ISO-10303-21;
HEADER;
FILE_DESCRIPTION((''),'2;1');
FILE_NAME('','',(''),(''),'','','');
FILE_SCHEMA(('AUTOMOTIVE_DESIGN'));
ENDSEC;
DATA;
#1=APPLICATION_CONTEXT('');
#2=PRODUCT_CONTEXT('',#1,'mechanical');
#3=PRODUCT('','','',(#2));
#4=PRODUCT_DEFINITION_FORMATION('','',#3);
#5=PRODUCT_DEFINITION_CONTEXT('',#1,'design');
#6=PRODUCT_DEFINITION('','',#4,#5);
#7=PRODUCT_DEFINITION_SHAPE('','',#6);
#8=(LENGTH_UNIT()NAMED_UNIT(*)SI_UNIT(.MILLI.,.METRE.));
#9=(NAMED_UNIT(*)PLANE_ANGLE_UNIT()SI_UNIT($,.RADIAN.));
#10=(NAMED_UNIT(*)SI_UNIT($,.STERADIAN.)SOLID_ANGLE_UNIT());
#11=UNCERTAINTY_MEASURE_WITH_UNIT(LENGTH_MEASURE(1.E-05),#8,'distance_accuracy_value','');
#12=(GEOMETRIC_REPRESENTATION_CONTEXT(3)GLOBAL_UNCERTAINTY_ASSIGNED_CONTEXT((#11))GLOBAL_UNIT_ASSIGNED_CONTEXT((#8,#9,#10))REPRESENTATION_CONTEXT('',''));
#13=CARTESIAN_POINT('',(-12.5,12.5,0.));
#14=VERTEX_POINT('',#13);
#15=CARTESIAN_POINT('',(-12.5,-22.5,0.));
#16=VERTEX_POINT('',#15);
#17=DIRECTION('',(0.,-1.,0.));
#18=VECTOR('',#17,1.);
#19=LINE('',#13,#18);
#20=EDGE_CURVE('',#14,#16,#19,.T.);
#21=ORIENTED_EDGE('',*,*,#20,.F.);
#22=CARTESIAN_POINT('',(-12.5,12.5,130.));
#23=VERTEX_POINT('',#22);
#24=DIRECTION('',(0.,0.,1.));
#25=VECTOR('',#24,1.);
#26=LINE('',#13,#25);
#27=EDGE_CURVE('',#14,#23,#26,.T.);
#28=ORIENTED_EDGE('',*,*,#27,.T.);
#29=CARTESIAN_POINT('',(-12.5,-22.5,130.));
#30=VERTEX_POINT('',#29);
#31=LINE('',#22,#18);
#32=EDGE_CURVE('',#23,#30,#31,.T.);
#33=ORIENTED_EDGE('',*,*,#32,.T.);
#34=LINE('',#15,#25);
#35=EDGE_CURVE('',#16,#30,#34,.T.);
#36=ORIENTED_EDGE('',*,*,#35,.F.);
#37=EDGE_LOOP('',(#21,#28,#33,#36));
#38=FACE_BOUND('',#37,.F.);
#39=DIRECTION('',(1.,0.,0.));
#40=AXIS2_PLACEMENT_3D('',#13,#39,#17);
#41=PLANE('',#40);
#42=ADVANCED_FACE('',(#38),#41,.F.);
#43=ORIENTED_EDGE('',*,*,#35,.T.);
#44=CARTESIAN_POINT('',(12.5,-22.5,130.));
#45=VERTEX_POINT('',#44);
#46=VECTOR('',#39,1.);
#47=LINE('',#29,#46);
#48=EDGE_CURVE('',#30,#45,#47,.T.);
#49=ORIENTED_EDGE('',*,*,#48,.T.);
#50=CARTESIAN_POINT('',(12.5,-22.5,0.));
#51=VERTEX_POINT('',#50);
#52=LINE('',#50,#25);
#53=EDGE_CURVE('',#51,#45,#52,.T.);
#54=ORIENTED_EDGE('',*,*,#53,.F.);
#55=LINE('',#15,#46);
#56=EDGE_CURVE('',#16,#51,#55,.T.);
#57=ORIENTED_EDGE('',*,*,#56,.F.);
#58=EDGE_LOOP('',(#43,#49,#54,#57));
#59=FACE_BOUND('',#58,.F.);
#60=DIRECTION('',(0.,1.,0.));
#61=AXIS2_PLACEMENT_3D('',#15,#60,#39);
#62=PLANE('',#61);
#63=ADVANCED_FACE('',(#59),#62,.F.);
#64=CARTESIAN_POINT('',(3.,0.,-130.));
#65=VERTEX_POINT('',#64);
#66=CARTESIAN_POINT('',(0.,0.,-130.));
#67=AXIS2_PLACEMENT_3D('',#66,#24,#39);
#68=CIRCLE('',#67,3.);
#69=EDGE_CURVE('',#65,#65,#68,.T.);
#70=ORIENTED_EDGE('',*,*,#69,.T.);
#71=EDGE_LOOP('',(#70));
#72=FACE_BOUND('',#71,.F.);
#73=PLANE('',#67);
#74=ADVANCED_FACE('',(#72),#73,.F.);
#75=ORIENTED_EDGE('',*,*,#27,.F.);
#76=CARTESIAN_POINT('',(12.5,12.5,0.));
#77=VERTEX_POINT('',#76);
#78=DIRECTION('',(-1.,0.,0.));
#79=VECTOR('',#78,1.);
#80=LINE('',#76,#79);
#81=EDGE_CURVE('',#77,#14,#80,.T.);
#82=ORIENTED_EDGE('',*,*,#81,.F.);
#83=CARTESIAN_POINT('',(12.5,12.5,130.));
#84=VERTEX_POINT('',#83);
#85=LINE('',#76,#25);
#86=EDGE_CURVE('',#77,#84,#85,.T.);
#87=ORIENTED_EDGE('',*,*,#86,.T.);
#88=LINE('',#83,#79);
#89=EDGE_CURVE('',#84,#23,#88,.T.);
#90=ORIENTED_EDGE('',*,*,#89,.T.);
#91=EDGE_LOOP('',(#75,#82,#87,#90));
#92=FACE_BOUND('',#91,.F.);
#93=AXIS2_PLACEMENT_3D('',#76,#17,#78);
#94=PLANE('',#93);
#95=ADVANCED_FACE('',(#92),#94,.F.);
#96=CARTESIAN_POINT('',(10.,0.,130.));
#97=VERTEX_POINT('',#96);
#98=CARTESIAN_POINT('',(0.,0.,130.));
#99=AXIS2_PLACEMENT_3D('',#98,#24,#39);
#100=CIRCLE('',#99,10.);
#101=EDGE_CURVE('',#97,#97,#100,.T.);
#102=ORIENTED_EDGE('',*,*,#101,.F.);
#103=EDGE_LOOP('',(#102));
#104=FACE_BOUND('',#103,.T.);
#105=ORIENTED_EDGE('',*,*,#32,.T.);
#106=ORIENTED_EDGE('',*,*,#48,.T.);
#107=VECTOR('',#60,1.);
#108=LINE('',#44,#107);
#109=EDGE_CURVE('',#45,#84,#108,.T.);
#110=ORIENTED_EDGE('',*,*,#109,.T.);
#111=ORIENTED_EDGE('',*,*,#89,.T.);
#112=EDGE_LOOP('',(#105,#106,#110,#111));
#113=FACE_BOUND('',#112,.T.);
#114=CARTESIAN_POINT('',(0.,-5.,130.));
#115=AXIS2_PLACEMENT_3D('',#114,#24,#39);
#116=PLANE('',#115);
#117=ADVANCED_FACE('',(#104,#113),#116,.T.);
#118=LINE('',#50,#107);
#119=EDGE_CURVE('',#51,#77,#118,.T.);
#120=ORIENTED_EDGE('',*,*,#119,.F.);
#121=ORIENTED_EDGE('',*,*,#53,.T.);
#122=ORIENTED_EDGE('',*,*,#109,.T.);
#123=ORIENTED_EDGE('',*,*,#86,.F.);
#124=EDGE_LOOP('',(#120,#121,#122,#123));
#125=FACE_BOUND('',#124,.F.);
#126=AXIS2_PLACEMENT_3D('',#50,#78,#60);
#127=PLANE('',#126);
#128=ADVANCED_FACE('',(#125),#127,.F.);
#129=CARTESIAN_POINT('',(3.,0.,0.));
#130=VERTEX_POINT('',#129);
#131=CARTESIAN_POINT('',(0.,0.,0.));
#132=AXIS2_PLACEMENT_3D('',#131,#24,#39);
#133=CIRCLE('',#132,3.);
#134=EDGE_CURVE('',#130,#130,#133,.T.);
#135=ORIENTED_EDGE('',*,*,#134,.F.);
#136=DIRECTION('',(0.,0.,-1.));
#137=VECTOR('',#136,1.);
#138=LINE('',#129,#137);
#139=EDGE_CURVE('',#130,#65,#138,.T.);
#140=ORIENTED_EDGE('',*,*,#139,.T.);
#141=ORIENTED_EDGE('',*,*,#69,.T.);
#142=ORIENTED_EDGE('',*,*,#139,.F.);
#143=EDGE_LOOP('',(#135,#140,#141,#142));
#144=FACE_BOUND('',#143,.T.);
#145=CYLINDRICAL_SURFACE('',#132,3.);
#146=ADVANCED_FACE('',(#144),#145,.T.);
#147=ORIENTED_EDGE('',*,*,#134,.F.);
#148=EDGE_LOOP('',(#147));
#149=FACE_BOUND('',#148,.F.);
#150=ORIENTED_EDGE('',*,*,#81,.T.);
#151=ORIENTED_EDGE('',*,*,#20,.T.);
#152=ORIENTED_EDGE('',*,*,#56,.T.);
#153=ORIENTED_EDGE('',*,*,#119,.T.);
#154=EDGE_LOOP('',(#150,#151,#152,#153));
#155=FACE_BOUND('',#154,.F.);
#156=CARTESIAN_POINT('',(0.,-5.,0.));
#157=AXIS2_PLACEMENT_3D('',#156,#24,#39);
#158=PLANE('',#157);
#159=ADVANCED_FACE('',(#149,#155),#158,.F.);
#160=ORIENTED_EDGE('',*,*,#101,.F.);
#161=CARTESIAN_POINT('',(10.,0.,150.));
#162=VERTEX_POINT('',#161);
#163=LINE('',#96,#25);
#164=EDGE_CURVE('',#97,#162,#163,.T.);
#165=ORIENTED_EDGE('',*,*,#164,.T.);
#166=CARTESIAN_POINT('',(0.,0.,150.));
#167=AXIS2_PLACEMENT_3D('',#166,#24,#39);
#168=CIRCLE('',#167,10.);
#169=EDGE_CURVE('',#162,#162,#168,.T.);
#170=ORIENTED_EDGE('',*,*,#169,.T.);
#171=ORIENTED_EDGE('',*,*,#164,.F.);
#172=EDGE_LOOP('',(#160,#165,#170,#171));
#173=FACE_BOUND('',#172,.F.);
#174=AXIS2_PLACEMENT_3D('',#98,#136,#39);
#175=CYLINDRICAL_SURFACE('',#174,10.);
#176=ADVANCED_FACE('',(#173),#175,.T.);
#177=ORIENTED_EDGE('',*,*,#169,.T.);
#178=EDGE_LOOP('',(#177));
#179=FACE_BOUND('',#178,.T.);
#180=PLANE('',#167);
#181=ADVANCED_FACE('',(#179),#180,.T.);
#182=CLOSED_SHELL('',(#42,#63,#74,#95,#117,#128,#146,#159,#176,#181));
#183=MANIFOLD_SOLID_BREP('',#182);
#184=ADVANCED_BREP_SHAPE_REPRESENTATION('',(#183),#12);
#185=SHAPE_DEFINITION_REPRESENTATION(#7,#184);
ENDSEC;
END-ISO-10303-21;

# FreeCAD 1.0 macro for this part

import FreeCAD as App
import Part
import Sketcher


def add_polygon(sketch, points):
    """Adds a closed chain of lines whose ends are joined by coincident constraints."""
    first, n = sketch.GeometryCount, len(points)
    for a, b in zip(points, points[1:] + points[:1]):
        sketch.addGeometry(Part.LineSegment(App.Vector(*a, 0), App.Vector(*b, 0)), False)
    for i in range(n):
        sketch.addConstraint(Sketcher.Constraint("Coincident", first + i, 2, first + (i + 1) % n, 1))

doc = App.newDocument("Part")
params = doc.addObject("Spreadsheet::Sheet", "Params")
for row, (alias, value) in enumerate([
    ("sketch1_diameter", "6 mm"),
    ("pad1_length", "130 mm"),
    ("sketch2_width", "25 mm"),
    ("sketch2_height", "35 mm"),
    ("pad2_length", "130 mm"),
    ("sketch3_diameter", "20 mm"),
    ("pad3_length", "20 mm"),
], start=1):
    params.set(f"A{row}", alias)
    params.set(f"B{row}", "=" + value)
    params.setAlias(f"B{row}", alias)

body = doc.addObject("PartDesign::Body", "Body")

# Sketch on XY plane
sketch1 = doc.addObject("Sketcher::SketchObject", "Sketch")
body.addObject(sketch1)
sketch1.AttachmentSupport = (doc.XY_Plane, [""])
sketch1.MapMode = "FlatFace"
sketch1.addGeometry(Part.Circle(App.Vector(0, 0, 0), App.Vector(0, 0, 1), 3), False)
sketch1.addConstraint(Sketcher.Constraint("Coincident", 0, 3, -1, 1))
sketch1.addConstraint(Sketcher.Constraint("Diameter", 0, 6.0))
sketch1.setExpression("Constraints[1]", "Params.sketch1_diameter")
pad1 = doc.addObject("PartDesign::Pad", "Pad")
body.addObject(pad1)
pad1.Profile = sketch1
pad1.setExpression("Length", "Params.pad1_length")
pad1.Reversed = True

# Sketch on XY plane
sketch2 = doc.addObject("Sketcher::SketchObject", "Sketch001")
body.addObject(sketch2)
sketch2.AttachmentSupport = (doc.XY_Plane, [""])
sketch2.MapMode = "FlatFace"
add_polygon(sketch2, [(12, 12), (-12, 12), (-12, -22), (12, -22)])  # lines 0-3
sketch2.addConstraint(Sketcher.Constraint("Horizontal", 0))
sketch2.addConstraint(Sketcher.Constraint("Vertical", 1))
sketch2.addConstraint(Sketcher.Constraint("Horizontal", 2))
sketch2.addConstraint(Sketcher.Constraint("Vertical", 3))
sketch2.addConstraint(Sketcher.Constraint("DistanceX", 0, 2, 0, 1, 25.0))
sketch2.addConstraint(Sketcher.Constraint("DistanceY", 1, 2, 1, 1, 35.0))
sketch2.addConstraint(Sketcher.Constraint("DistanceX", 0, 2, -1, 1, 12.5))
sketch2.addConstraint(Sketcher.Constraint("DistanceY", -1, 1, 0, 2, 12.5))
sketch2.setExpression("Constraints[8]", "Params.sketch2_width")
sketch2.setExpression("Constraints[9]", "Params.sketch2_height")
pad2 = doc.addObject("PartDesign::Pad", "Pad001")
body.addObject(pad2)
pad2.Profile = sketch2
pad2.setExpression("Length", "Params.pad2_length")

# Sketch on XY plane
sketch3 = doc.addObject("Sketcher::SketchObject", "Sketch002")
body.addObject(sketch3)
sketch3.AttachmentSupport = (doc.XY_Plane, [""])
sketch3.MapMode = "FlatFace"
sketch3.AttachmentOffset = App.Placement(App.Vector(0, 0, 130), App.Rotation())
sketch3.addGeometry(Part.Circle(App.Vector(0, 0, 0), App.Vector(0, 0, 1), 10), False)
sketch3.addConstraint(Sketcher.Constraint("Coincident", 0, 3, -1, 1))
sketch3.addConstraint(Sketcher.Constraint("Diameter", 0, 20.0))
sketch3.setExpression("Constraints[1]", "Params.sketch3_diameter")
pad3 = doc.addObject("PartDesign::Pad", "Pad002")
body.addObject(pad3)
pad3.Profile = sketch3
pad3.setExpression("Length", "Params.pad3_length")

doc.recompute()
